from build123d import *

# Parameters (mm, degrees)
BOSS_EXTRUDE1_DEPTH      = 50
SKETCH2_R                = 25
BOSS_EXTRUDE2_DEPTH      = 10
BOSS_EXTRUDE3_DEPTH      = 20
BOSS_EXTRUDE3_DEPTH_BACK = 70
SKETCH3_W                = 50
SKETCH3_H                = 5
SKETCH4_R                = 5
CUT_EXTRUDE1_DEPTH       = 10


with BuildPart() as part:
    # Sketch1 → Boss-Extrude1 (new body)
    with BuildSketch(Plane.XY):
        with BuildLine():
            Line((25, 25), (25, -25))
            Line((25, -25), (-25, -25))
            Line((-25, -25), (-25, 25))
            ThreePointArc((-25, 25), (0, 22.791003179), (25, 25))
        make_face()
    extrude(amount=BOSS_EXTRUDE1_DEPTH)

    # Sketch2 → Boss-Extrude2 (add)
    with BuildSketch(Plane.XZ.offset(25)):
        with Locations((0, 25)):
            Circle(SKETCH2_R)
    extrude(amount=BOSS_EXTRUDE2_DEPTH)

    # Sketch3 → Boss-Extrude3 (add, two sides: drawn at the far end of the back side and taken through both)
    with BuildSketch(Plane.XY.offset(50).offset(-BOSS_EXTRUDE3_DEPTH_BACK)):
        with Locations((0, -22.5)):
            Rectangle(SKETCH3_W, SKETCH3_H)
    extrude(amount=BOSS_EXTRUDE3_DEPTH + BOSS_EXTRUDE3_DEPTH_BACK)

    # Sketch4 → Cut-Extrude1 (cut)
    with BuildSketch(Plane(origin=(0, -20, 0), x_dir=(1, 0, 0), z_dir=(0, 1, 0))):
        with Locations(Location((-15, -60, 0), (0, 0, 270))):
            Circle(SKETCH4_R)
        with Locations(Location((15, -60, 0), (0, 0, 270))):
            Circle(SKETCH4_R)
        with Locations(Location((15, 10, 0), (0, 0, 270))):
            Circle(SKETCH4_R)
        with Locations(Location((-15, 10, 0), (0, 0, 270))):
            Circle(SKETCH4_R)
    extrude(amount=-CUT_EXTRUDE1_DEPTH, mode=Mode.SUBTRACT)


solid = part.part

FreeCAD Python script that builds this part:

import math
import FreeCAD as App
import Part
import Sketcher
from FreeCAD import Vector
Q = App.Units.Quantity

doc = App.newDocument("Part")
body = doc.addObject("PartDesign::Body", "Body")

# Sketch on XY plane
sketch1 = doc.addObject("Sketcher::SketchObject", "Sketch")
body.addObject(sketch1)
sketch1.AttachmentSupport = (doc.XY_Plane, [""])
sketch1.MapMode = "FlatFace"
sketch1.addGeometry(Part.LineSegment(Vector(25, -25, 0), Vector(25, 25, 0)), False)
sketch1.addGeometry(Part.ArcOfCircle(Part.Circle(Vector(0, 165, 0), Vector(0, 0, 1), 143), math.radians(-100), math.radians(-80)), False)
sketch1.addGeometry(Part.LineSegment(Vector(-25, 25, 0), Vector(-25, -25, 0)), False)
sketch1.addGeometry(Part.LineSegment(Vector(-25, -25, 0), Vector(25, -25, 0)), False)
sketch1.addConstraint(Sketcher.Constraint("Coincident", 0, 2, 1, 2))
sketch1.addConstraint(Sketcher.Constraint("Coincident", 1, 1, 2, 1))
sketch1.addConstraint(Sketcher.Constraint("Coincident", 2, 2, 3, 1))
sketch1.addConstraint(Sketcher.Constraint("Coincident", 3, 2, 0, 1))
sketch1.addConstraint(Sketcher.Constraint("Vertical", 0))
sketch1.addConstraint(Sketcher.Constraint("Vertical", 2))
sketch1.addConstraint(Sketcher.Constraint("Horizontal", 3))
sketch1.addConstraint(Sketcher.Constraint("Symmetric", 0, 2, 2, 2, -1, 1))
sketch1.addConstraint(Sketcher.Constraint("PointOnObject", 1, 3, -2))
sketch1.addConstraint(Sketcher.Constraint("Equal", 3, 0))
sketch1.addConstraint(Sketcher.Constraint("DistanceX", 3, 1, 3, 2, Q("50 mm")))
sketch1.addConstraint(Sketcher.Constraint("Radius", 1, Q("142.571429 mm")))
pad1 = doc.addObject("PartDesign::Pad", "Pad")
body.addObject(pad1)
pad1.Profile = sketch1
pad1.Length = 50

# Sketch on XZ plane
sketch2 = doc.addObject("Sketcher::SketchObject", "Sketch001")
body.addObject(sketch2)
sketch2.AttachmentSupport = (doc.XZ_Plane, [""])
sketch2.MapMode = "FlatFace"
sketch2.AttachmentOffset = App.Placement(Vector(0, 0, 25), App.Rotation())
sketch2.addGeometry(Part.Circle(Vector(0, 25, 0), Vector(0, 0, 1), 25), False)
sketch2.addConstraint(Sketcher.Constraint("PointOnObject", 0, 3, -2))
sketch2.addConstraint(Sketcher.Constraint("Diameter", 0, Q("50 mm")))
sketch2.addConstraint(Sketcher.Constraint("DistanceY", -1, 1, 0, 3, Q("25 mm")))
pad2 = doc.addObject("PartDesign::Pad", "Pad001")
body.addObject(pad2)
pad2.Profile = sketch2
pad2.Length = 10

# Sketch on XY plane
sketch3 = doc.addObject("Sketcher::SketchObject", "Sketch002")
body.addObject(sketch3)
sketch3.AttachmentSupport = (doc.XY_Plane, [""])
sketch3.MapMode = "FlatFace"
sketch3.AttachmentOffset = App.Placement(Vector(0, 0, 50), App.Rotation())
sketch3.addGeometry(Part.LineSegment(Vector(-25, -20, 0), Vector(-25, -25, 0)), False)
sketch3.addGeometry(Part.LineSegment(Vector(-25, -25, 0), Vector(25, -25, 0)), False)
sketch3.addGeometry(Part.LineSegment(Vector(25, -25, 0), Vector(25, -20, 0)), False)
sketch3.addGeometry(Part.LineSegment(Vector(25, -20, 0), Vector(-25, -20, 0)), False)
sketch3.addConstraint(Sketcher.Constraint("Coincident", 0, 2, 1, 1))
sketch3.addConstraint(Sketcher.Constraint("Coincident", 1, 2, 2, 1))
sketch3.addConstraint(Sketcher.Constraint("Coincident", 2, 2, 3, 1))
sketch3.addConstraint(Sketcher.Constraint("Coincident", 3, 2, 0, 1))
sketch3.addConstraint(Sketcher.Constraint("Vertical", 0))
sketch3.addConstraint(Sketcher.Constraint("Horizontal", 1))
sketch3.addConstraint(Sketcher.Constraint("Vertical", 2))
sketch3.addConstraint(Sketcher.Constraint("Horizontal", 3))
sketch3.addConstraint(Sketcher.Constraint("DistanceX", 1, 1, 1, 2, Q("50 mm")))
sketch3.addConstraint(Sketcher.Constraint("DistanceY", 0, 2, 0, 1, Q("5 mm")))
sketch3.addConstraint(Sketcher.Constraint("DistanceX", 0, 2, -1, 1, Q("25 mm")))
sketch3.addConstraint(Sketcher.Constraint("DistanceY", 0, 2, -1, 1, Q("25 mm")))
pad3 = doc.addObject("PartDesign::Pad", "Pad002")
body.addObject(pad3)
pad3.Profile = sketch3
pad3.Type = "TwoLengths"
pad3.Length = 20
pad3.Length2 = 70

# Sketch on XZ plane
sketch4 = doc.addObject("Sketcher::SketchObject", "Sketch003")
body.addObject(sketch4)
sketch4.AttachmentSupport = (doc.XZ_Plane, [""])
sketch4.MapMode = "FlatFace"
sketch4.AttachmentOffset = App.Placement(Vector(0, 0, 20), App.Rotation())
sketch4.addGeometry(Part.Circle(Vector(-15, 60, 0), Vector(0, 0, 1), 5), False)
sketch4.addGeometry(Part.Circle(Vector(15, 60, 0), Vector(0, 0, 1), 5), False)
sketch4.addGeometry(Part.Circle(Vector(15, -10, 0), Vector(0, 0, 1), 5), False)
sketch4.addGeometry(Part.Circle(Vector(-15, -10, 0), Vector(0, 0, 1), 5), False)
sketch4.addConstraint(Sketcher.Constraint("Equal", 0, 1))
sketch4.addConstraint(Sketcher.Constraint("Equal", 1, 2))
sketch4.addConstraint(Sketcher.Constraint("Equal", 2, 3))
sketch4.addConstraint(Sketcher.Constraint("Symmetric", 0, 3, 1, 3, -2))
sketch4.addConstraint(Sketcher.Constraint("Symmetric", 2, 3, 3, 3, -2))
sketch4.addConstraint(Sketcher.Constraint("Vertical", 1, 3, 2, 3))
sketch4.addConstraint(Sketcher.Constraint("Diameter", 0, Q("10 mm")))
sketch4.addConstraint(Sketcher.Constraint("DistanceX", 0, 3, -1, 1, Q("15 mm")))
sketch4.addConstraint(Sketcher.Constraint("DistanceY", -1, 1, 0, 3, Q("60 mm")))
sketch4.addConstraint(Sketcher.Constraint("DistanceY", 2, 3, -1, 1, Q("10 mm")))
pocket1 = doc.addObject("PartDesign::Pocket", "Pocket")
body.addObject(pocket1)
pocket1.Profile = sketch4
pocket1.Length = 10
pocket1.Reversed = True

doc.recompute()
